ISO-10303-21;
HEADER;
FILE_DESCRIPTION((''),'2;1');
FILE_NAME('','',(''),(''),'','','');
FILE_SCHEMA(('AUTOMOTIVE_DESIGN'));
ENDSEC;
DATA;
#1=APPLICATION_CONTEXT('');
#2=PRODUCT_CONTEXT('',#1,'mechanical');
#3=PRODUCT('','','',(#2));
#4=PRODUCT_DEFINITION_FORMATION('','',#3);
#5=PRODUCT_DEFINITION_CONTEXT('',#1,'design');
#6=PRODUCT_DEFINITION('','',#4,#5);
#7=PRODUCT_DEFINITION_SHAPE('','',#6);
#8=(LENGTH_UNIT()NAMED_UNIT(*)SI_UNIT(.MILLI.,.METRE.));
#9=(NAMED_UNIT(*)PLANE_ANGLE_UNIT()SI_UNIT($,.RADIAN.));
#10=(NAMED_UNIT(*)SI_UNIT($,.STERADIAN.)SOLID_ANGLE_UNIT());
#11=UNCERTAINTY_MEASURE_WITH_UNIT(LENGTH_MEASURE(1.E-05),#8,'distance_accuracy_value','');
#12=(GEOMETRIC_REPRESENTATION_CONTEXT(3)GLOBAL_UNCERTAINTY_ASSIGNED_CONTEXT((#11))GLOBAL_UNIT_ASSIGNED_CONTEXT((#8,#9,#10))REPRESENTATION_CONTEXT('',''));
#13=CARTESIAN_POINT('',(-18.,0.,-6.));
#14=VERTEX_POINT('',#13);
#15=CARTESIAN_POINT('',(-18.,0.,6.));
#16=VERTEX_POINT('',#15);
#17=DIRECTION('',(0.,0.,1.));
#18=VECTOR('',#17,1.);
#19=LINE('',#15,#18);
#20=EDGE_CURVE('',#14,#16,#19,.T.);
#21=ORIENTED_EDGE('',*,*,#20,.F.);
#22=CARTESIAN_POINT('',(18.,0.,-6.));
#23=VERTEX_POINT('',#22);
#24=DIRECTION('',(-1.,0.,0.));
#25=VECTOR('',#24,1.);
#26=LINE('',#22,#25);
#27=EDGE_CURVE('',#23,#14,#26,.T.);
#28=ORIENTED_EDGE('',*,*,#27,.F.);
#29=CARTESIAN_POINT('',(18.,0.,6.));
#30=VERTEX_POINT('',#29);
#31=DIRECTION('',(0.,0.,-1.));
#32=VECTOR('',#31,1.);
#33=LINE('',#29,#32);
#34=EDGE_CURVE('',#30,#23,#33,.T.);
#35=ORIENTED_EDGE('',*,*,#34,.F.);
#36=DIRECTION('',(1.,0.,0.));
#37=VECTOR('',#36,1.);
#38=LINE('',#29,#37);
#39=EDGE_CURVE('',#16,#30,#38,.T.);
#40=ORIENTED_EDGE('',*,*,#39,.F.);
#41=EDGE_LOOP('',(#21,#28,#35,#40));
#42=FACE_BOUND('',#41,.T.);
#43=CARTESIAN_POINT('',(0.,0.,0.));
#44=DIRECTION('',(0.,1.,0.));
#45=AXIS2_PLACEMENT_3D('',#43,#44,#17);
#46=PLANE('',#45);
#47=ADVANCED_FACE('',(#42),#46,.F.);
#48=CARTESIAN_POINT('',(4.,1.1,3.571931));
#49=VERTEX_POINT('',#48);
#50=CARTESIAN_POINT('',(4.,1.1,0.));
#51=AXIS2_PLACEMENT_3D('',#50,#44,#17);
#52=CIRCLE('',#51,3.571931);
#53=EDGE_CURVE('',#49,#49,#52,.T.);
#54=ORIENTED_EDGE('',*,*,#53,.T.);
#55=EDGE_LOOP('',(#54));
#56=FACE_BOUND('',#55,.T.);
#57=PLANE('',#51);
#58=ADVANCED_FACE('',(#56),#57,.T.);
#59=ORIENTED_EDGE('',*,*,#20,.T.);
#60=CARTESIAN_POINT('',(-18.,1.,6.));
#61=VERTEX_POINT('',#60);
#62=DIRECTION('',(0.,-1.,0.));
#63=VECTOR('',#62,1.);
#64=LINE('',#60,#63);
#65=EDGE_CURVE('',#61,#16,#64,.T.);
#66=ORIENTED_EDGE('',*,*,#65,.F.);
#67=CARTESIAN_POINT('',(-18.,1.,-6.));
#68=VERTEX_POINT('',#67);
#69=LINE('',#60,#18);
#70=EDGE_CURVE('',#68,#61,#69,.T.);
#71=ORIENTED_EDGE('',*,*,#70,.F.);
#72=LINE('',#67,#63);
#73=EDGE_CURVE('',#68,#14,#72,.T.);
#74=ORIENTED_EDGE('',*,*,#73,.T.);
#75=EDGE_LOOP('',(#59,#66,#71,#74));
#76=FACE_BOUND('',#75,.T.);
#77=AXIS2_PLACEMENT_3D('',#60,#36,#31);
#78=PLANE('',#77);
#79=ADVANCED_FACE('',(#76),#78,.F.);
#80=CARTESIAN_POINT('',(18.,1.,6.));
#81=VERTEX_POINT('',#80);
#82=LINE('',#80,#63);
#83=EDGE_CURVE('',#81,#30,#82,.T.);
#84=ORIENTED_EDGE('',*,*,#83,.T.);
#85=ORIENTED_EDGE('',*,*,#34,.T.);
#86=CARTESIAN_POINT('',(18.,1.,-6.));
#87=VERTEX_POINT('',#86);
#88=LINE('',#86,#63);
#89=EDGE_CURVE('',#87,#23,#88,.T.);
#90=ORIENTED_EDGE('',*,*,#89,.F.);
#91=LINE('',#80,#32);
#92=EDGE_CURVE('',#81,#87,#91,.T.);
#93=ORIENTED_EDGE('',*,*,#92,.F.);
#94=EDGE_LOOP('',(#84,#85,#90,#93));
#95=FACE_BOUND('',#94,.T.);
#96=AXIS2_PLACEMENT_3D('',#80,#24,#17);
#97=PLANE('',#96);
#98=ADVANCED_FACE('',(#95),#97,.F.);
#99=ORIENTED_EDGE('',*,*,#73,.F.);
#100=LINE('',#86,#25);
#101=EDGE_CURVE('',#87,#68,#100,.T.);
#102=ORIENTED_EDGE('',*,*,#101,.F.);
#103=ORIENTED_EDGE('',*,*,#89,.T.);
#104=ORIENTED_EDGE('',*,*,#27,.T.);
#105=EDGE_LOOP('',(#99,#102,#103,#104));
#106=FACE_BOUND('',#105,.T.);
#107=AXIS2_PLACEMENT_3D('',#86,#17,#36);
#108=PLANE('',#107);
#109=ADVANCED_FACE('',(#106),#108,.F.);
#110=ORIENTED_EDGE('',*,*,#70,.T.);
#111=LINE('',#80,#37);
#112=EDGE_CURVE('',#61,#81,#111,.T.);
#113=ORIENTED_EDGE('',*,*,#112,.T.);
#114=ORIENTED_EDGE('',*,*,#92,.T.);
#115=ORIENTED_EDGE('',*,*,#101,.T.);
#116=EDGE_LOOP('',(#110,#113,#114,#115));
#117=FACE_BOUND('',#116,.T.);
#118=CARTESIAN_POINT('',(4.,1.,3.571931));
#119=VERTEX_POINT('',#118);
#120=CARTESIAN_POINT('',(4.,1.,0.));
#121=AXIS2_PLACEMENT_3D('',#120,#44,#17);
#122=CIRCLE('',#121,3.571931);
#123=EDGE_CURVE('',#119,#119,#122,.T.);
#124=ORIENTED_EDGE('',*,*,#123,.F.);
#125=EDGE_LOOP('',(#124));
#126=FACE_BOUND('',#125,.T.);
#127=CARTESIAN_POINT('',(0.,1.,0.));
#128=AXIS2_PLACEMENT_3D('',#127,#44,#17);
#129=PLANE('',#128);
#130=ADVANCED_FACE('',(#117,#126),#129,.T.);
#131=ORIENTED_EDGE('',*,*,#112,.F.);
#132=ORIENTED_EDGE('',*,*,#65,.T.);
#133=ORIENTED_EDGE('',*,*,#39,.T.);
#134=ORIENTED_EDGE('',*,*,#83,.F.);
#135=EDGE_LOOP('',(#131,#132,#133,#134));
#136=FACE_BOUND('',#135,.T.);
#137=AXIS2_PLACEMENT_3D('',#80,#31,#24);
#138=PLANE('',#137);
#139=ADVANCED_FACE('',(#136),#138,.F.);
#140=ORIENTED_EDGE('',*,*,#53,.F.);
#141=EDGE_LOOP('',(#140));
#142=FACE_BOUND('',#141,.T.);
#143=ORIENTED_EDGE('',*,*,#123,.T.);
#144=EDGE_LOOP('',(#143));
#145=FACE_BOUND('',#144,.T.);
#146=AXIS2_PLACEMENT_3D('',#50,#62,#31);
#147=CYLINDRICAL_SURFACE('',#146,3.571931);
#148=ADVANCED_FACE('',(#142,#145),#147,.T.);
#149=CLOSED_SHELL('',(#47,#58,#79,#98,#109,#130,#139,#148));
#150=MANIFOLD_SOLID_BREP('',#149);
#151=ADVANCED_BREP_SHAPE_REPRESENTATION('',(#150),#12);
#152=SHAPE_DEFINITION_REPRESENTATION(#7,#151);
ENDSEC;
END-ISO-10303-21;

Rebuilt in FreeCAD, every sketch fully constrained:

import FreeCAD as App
import Part
import Sketcher

V = App.Vector

doc = App.newDocument("Part")
params = doc.addObject("Spreadsheet::Sheet", "Params")
for row, (alias, value) in enumerate([
    ("sketch1_width", "36 mm"),
    ("sketch1_height", "12 mm"),
    ("pad1_length", "1 mm"),
    ("pad2_length", "0.1 mm"),
], start=1):
    params.set(f"A{row}", alias)
    params.set(f"B{row}", "=" + value)
    params.setAlias(f"B{row}", alias)

body = doc.addObject("PartDesign::Body", "Body")

# Sketch on XZ plane
sketch1 = body.newObject("Sketcher::SketchObject", "Sketch")
sketch1.AttachmentSupport = (doc.getObject("XZ_Plane"), [""])
sketch1.MapMode = "FlatFace"
sketch1.addGeometry([
    Part.LineSegment(V(-18, -6, 0), V(-18, 6, 0)),
    Part.LineSegment(V(-18, 6, 0), V(18, 6, 0)),
    Part.LineSegment(V(18, 6, 0), V(18, -6, 0)),
    Part.LineSegment(V(18, -6, 0), V(-18, -6, 0)),
], False)
sketch1.addConstraint([
    Sketcher.Constraint("Coincident", 0, 2, 1, 1),
    Sketcher.Constraint("Coincident", 1, 2, 2, 1),
    Sketcher.Constraint("Coincident", 2, 2, 3, 1),
    Sketcher.Constraint("Coincident", 3, 2, 0, 1),
    Sketcher.Constraint("Vertical", 0),
    Sketcher.Constraint("Horizontal", 1),
    Sketcher.Constraint("Vertical", 2),
    Sketcher.Constraint("Horizontal", 3),
    Sketcher.Constraint("Symmetric", 0, 2, 2, 2, -1, 1),
    Sketcher.Constraint("DistanceX", 1, 1, 1, 2, 36.0),
    Sketcher.Constraint("DistanceY", 0, 1, 0, 2, 12.0),
])
sketch1.setExpression("Constraints[9]", "Params.sketch1_width")
sketch1.setExpression("Constraints[10]", "Params.sketch1_height")
pad1 = body.newObject("PartDesign::Pad", "Pad")
pad1.Profile = sketch1
pad1.setExpression("Length", "Params.pad1_length")
pad1.Reversed = True

# Sketch on XZ plane
sketch2 = body.newObject("Sketcher::SketchObject", "Sketch001")
sketch2.AttachmentSupport = (doc.getObject("XZ_Plane"), [""])
sketch2.MapMode = "FlatFace"
sketch2.AttachmentOffset = App.Placement(V(0, 0, -1), App.Rotation())
sketch2.addGeometry(Part.Circle(V(4, 0, 0), V(0, 0, 1), 3.571931), False)
sketch2.addConstraint([
    Sketcher.Constraint("PointOnObject", 0, 3, -1),
    Sketcher.Constraint("DistanceX", -1, 1, 0, 3, 4.0),
    Sketcher.Constraint("Diameter", 0, 7.143861),
])
pad2 = body.newObject("PartDesign::Pad", "Pad001")
pad2.Profile = sketch2
pad2.setExpression("Length", "Params.pad2_length")
pad2.Reversed = True

doc.recompute()
